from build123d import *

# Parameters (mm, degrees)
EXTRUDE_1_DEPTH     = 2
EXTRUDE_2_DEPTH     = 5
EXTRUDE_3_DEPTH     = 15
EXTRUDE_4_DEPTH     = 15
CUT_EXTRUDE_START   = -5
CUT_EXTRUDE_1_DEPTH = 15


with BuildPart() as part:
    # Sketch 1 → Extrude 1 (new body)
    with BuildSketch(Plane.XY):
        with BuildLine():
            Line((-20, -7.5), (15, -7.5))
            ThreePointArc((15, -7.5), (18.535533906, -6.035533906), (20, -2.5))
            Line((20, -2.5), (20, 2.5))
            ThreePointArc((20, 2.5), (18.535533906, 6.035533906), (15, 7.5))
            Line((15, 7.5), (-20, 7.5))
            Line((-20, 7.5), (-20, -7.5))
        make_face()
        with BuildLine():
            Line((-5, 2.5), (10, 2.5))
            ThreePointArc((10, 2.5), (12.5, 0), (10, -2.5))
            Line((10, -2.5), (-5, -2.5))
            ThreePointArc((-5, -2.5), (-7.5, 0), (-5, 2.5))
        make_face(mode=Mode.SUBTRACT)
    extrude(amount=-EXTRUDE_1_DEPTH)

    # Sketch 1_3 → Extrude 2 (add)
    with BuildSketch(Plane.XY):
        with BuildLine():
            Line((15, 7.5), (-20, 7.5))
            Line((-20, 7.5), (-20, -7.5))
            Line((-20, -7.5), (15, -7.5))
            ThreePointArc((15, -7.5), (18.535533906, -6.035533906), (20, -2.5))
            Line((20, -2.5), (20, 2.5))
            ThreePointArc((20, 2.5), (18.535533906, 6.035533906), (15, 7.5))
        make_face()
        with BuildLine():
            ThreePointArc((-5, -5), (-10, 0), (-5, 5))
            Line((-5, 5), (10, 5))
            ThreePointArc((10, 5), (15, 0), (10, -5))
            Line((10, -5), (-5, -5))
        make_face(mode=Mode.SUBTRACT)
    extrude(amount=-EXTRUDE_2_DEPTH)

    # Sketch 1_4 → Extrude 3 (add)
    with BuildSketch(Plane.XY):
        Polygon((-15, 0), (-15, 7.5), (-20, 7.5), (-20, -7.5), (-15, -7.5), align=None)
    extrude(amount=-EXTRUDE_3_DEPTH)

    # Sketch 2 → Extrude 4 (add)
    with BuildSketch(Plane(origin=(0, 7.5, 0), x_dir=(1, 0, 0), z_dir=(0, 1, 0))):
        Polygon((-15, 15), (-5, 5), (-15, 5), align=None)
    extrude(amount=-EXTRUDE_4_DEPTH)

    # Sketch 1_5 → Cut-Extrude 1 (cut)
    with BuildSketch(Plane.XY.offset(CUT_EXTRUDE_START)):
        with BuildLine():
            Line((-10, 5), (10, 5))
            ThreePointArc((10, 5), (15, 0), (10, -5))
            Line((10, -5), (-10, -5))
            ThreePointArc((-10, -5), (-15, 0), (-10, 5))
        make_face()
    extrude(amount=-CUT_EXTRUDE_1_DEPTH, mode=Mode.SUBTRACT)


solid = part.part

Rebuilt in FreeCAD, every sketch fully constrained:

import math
import FreeCAD as App
import Part
import Sketcher

V = App.Vector
Q = App.Units.Quantity

doc = App.newDocument("Part")
params = doc.addObject("Spreadsheet::Sheet", "Params")
for row, (alias, value) in enumerate([
    ("sketch1_radius", "5 mm"),
    ("sketch1_radius2", "2.5 mm"),
    ("sketch1_width", "35 mm"),
    ("pad1_length", "2 mm"),
    ("sketch2_radius", "5 mm"),
    ("sketch2_width", "35 mm"),
    ("sketch2_width2", "15 mm"),
    ("pad2_length", "5 mm"),
    ("sketch3_width", "5 mm"),
    ("sketch3_height", "15 mm"),
    ("pad3_length", "15 mm"),
    ("sketch4_width", "10 mm"),
    ("pad4_length", "15 mm"),
    ("sketch5_radius", "5 mm"),
    ("sketch5_width", "20 mm"),
    ("pocket1_length", "15 mm"),
], start=1):
    params.set(f"A{row}", alias)
    params.set(f"B{row}", "=" + value)
    params.setAlias(f"B{row}", alias)

body = doc.addObject("PartDesign::Body", "Body")

# Sketch on XY plane
sketch1 = doc.addObject("Sketcher::SketchObject", "Sketch")
body.addObject(sketch1)
sketch1.AttachmentSupport = (doc.XY_Plane, [""])
sketch1.MapMode = "FlatFace"
sketch1.addGeometry([
    Part.LineSegment(V(-20, -7.5, 0), V(15, -7.5, 0)),  # 0
    Part.ArcOfCircle(Part.Circle(V(15, -2.5, 0), V(0, 0, 1), 5), math.radians(-90), math.radians(0)),  # 1
    Part.LineSegment(V(20, -2.5, 0), V(20, 2.5, 0)),  # 2
    Part.ArcOfCircle(Part.Circle(V(15, 2.5, 0), V(0, 0, 1), 5), math.radians(0), math.radians(90)),  # 3
    Part.LineSegment(V(15, 7.5, 0), V(-20, 7.5, 0)),  # 4
    Part.LineSegment(V(-20, 7.5, 0), V(-20, -7.5, 0)),  # 5
    Part.ArcOfCircle(Part.Circle(V(-5, 0, 0), V(0, 0, 1), 2.5), math.radians(90), math.radians(270)),  # 6
    Part.LineSegment(V(-5, 2.5, 0), V(10, 2.5, 0)),  # 7
    Part.ArcOfCircle(Part.Circle(V(10, 0, 0), V(0, 0, 1), 2.5), math.radians(-90), math.radians(90)),  # 8
    Part.LineSegment(V(10, -2.5, 0), V(-5, -2.5, 0)),  # 9
], False)
sketch1.addConstraint([
    Sketcher.Constraint("Tangent", 0, 2, 1, 1),
    Sketcher.Constraint("Tangent", 1, 2, 2, 1),
    Sketcher.Constraint("Tangent", 2, 2, 3, 1),
    Sketcher.Constraint("Tangent", 3, 2, 4, 1),
    Sketcher.Constraint("Coincident", 4, 2, 5, 1),
    Sketcher.Constraint("Coincident", 5, 2, 0, 1),
    Sketcher.Constraint("Tangent", 6, 1, 7, 1),
    Sketcher.Constraint("Tangent", 7, 2, 8, 2),
    Sketcher.Constraint("Tangent", 8, 1, 9, 1),
    Sketcher.Constraint("Tangent", 9, 2, 6, 2),
    Sketcher.Constraint("Horizontal", 0),
    Sketcher.Constraint("Vertical", 2),
    Sketcher.Constraint("Horizontal", 4),
    Sketcher.Constraint("Vertical", 5),
    Sketcher.Constraint("Horizontal", 7),
    Sketcher.Constraint("Horizontal", 9),
    Sketcher.Constraint("Equal", 1, 3),
    Sketcher.Constraint("PointOnObject", 6, 3, -1),
    Sketcher.Constraint("Horizontal", 2, 2, 6, 1),
    Sketcher.Constraint("Horizontal", 1, 2, 8, 1),
    Sketcher.Constraint("Equal", 9, 5),
    Sketcher.Constraint("Radius", 1, Q("5 mm")),
    Sketcher.Constraint("Radius", 6, Q("2.5 mm")),
    Sketcher.Constraint("DistanceX", 0, 1, 0, 2, Q("35 mm")),
    Sketcher.Constraint("DistanceX", -1, 1, 1, 3, Q("15 mm")),
    Sketcher.Constraint("DistanceX", 6, 3, -1, 1, Q("5 mm")),
])
sketch1.setExpression("Constraints[21]", "Params.sketch1_radius")
sketch1.setExpression("Constraints[22]", "Params.sketch1_radius2")
sketch1.setExpression("Constraints[23]", "Params.sketch1_width")
pad1 = doc.addObject("PartDesign::Pad", "Pad")
body.addObject(pad1)
pad1.Profile = sketch1
pad1.setExpression("Length", "Params.pad1_length")
pad1.Reversed = True

# Sketch on XY plane
sketch2 = doc.addObject("Sketcher::SketchObject", "Sketch001")
body.addObject(sketch2)
sketch2.AttachmentSupport = (doc.XY_Plane, [""])
sketch2.MapMode = "FlatFace"
sketch2.addGeometry([
    Part.LineSegment(V(15, 8, 0), V(-20, 8, 0)),  # 0
    Part.LineSegment(V(-20, 8, 0), V(-20, -8, 0)),  # 1
    Part.LineSegment(V(-20, -8, 0), V(15, -8, 0)),  # 2
    Part.ArcOfCircle(Part.Circle(V(15, -2, 0), V(0, 0, 1), 5), math.radians(-90), math.radians(0)),  # 3
    Part.LineSegment(V(20, -2, 0), V(20, 2, 0)),  # 4
    Part.ArcOfCircle(Part.Circle(V(15, 2, 0), V(0, 0, 1), 5), math.radians(0), math.radians(90)),  # 5
    Part.LineSegment(V(10, -5, 0), V(-5, -5, 0)),  # 6
    Part.ArcOfCircle(Part.Circle(V(-5, 0, 0), V(0, 0, 1), 5), math.radians(90), math.radians(270)),  # 7
    Part.LineSegment(V(-5, 5, 0), V(10, 5, 0)),  # 8
    Part.ArcOfCircle(Part.Circle(V(10, 0, 0), V(0, 0, 1), 5), math.radians(-90), math.radians(90)),  # 9
], False)
sketch2.addConstraint([
    Sketcher.Constraint("Coincident", 0, 2, 1, 1),
    Sketcher.Constraint("Coincident", 1, 2, 2, 1),
    Sketcher.Constraint("Tangent", 2, 2, 3, 1),
    Sketcher.Constraint("Tangent", 3, 2, 4, 1),
    Sketcher.Constraint("Tangent", 4, 2, 5, 1),
    Sketcher.Constraint("Tangent", 5, 2, 0, 1),
    Sketcher.Constraint("Tangent", 6, 2, 7, 2),
    Sketcher.Constraint("Tangent", 7, 1, 8, 1),
    Sketcher.Constraint("Tangent", 8, 2, 9, 2),
    Sketcher.Constraint("Tangent", 9, 1, 6, 1),
    Sketcher.Constraint("Horizontal", 0),
    Sketcher.Constraint("Vertical", 1),
    Sketcher.Constraint("Horizontal", 2),
    Sketcher.Constraint("Vertical", 4),
    Sketcher.Constraint("Horizontal", 6),
    Sketcher.Constraint("Horizontal", 8),
    Sketcher.Constraint("Equal", 3, 5),
    Sketcher.Constraint("Equal", 5, 7),
    Sketcher.Constraint("PointOnObject", 7, 3, -1),
    Sketcher.Constraint("Equal", 8, 1),
    Sketcher.Constraint("Radius", 3, Q("5 mm")),
    Sketcher.Constraint("DistanceX", 0, 2, 0, 1, Q("35 mm")),
    Sketcher.Constraint("DistanceX", 6, 2, 6, 1, Q("15 mm")),
    Sketcher.Constraint("DistanceX", -1, 1, 3, 3, Q("15 mm")),
    Sketcher.Constraint("DistanceX", 7, 3, -1, 1, Q("5 mm")),
    Sketcher.Constraint("DistanceY", 3, 3, -1, 1, Q("2.5 mm")),
])
sketch2.setExpression("Constraints[20]", "Params.sketch2_radius")
sketch2.setExpression("Constraints[21]", "Params.sketch2_width")
sketch2.setExpression("Constraints[22]", "Params.sketch2_width2")
pad2 = doc.addObject("PartDesign::Pad", "Pad001")
body.addObject(pad2)
pad2.Profile = sketch2
pad2.setExpression("Length", "Params.pad2_length")
pad2.Reversed = True

# Sketch on XY plane
sketch3 = doc.addObject("Sketcher::SketchObject", "Sketch002")
body.addObject(sketch3)
sketch3.AttachmentSupport = (doc.XY_Plane, [""])
sketch3.MapMode = "FlatFace"
sketch3.addGeometry([
    Part.LineSegment(V(-15, 8, 0), V(-20, 8, 0)),
    Part.LineSegment(V(-20, 8, 0), V(-20, -8, 0)),
    Part.LineSegment(V(-20, -8, 0), V(-15, -8, 0)),
    Part.LineSegment(V(-15, -8, 0), V(-15, 8, 0)),
], False)
sketch3.addConstraint([
    Sketcher.Constraint("Coincident", 0, 2, 1, 1),
    Sketcher.Constraint("Coincident", 1, 2, 2, 1),
    Sketcher.Constraint("Coincident", 2, 2, 3, 1),
    Sketcher.Constraint("Coincident", 3, 2, 0, 1),
    Sketcher.Constraint("Horizontal", 0),
    Sketcher.Constraint("Vertical", 1),
    Sketcher.Constraint("Horizontal", 2),
    Sketcher.Constraint("Vertical", 3),
    Sketcher.Constraint("DistanceX", 0, 2, 0, 1, Q("5 mm")),
    Sketcher.Constraint("DistanceY", 1, 2, 1, 1, Q("15 mm")),
    Sketcher.Constraint("DistanceX", 0, 2, -1, 1, Q("20 mm")),
    Sketcher.Constraint("DistanceY", -1, 1, 0, 2, Q("7.5 mm")),
])
sketch3.setExpression("Constraints[8]", "Params.sketch3_width")
sketch3.setExpression("Constraints[9]", "Params.sketch3_height")
pad3 = doc.addObject("PartDesign::Pad", "Pad002")
body.addObject(pad3)
pad3.Profile = sketch3
pad3.setExpression("Length", "Params.pad3_length")
pad3.Reversed = True

# Sketch on XZ plane
sketch4 = doc.addObject("Sketcher::SketchObject", "Sketch003")
body.addObject(sketch4)
sketch4.AttachmentSupport = (doc.XZ_Plane, [""])
sketch4.MapMode = "FlatFace"
sketch4.AttachmentOffset = App.Placement(V(0, 0, -7.5), App.Rotation())
sketch4.addGeometry([
    Part.LineSegment(V(-5, -5, 0), V(-15, -15, 0)),
    Part.LineSegment(V(-15, -15, 0), V(-15, -5, 0)),
    Part.LineSegment(V(-15, -5, 0), V(-5, -5, 0)),
], False)
sketch4.addConstraint([
    Sketcher.Constraint("Coincident", 0, 2, 1, 1),
    Sketcher.Constraint("Coincident", 1, 2, 2, 1),
    Sketcher.Constraint("Coincident", 2, 2, 0, 1),
    Sketcher.Constraint("Vertical", 1),
    Sketcher.Constraint("Horizontal", 2),
    Sketcher.Constraint("Equal", 2, 1),
    Sketcher.Constraint("DistanceX", 2, 1, 2, 2, Q("10 mm")),
    Sketcher.Constraint("DistanceX", 0, 2, -1, 1, Q("15 mm")),
    Sketcher.Constraint("DistanceY", 0, 2, -1, 1, Q("15 mm")),
])
sketch4.setExpression("Constraints[6]", "Params.sketch4_width")
pad4 = doc.addObject("PartDesign::Pad", "Pad003")
body.addObject(pad4)
pad4.Profile = sketch4
pad4.setExpression("Length", "Params.pad4_length")

# Sketch on XY plane
sketch5 = doc.addObject("Sketcher::SketchObject", "Sketch004")
body.addObject(sketch5)
sketch5.AttachmentSupport = (doc.XY_Plane, [""])
sketch5.MapMode = "FlatFace"
sketch5.AttachmentOffset = App.Placement(V(0, 0, -5), App.Rotation())
sketch5.addGeometry([
    Part.LineSegment(V(10, 5, 0), V(-10, 5, 0)),
    Part.ArcOfCircle(Part.Circle(V(-10, 0, 0), V(0, 0, 1), 5), math.radians(90), math.radians(270)),
    Part.LineSegment(V(-10, -5, 0), V(10, -5, 0)),
    Part.ArcOfCircle(Part.Circle(V(10, 0, 0), V(0, 0, 1), 5), math.radians(-90), math.radians(90)),
], False)
sketch5.addConstraint([
    Sketcher.Constraint("Tangent", 0, 2, 1, 1),
    Sketcher.Constraint("Tangent", 1, 2, 2, 1),
    Sketcher.Constraint("Tangent", 2, 2, 3, 1),
    Sketcher.Constraint("Tangent", 3, 2, 0, 1),
    Sketcher.Constraint("Horizontal", 0),
    Sketcher.Constraint("Horizontal", 2),
    Sketcher.Constraint("Symmetric", 1, 3, 3, 3, -1, 1),
    Sketcher.Constraint("Radius", 1, Q("5 mm")),
    Sketcher.Constraint("DistanceX", 0, 2, 0, 1, Q("20 mm")),
])
sketch5.setExpression("Constraints[7]", "Params.sketch5_radius")
sketch5.setExpression("Constraints[8]", "Params.sketch5_width")
pocket1 = doc.addObject("PartDesign::Pocket", "Pocket")
body.addObject(pocket1)
pocket1.Profile = sketch5
pocket1.setExpression("Length", "Params.pocket1_length")

doc.recompute()
